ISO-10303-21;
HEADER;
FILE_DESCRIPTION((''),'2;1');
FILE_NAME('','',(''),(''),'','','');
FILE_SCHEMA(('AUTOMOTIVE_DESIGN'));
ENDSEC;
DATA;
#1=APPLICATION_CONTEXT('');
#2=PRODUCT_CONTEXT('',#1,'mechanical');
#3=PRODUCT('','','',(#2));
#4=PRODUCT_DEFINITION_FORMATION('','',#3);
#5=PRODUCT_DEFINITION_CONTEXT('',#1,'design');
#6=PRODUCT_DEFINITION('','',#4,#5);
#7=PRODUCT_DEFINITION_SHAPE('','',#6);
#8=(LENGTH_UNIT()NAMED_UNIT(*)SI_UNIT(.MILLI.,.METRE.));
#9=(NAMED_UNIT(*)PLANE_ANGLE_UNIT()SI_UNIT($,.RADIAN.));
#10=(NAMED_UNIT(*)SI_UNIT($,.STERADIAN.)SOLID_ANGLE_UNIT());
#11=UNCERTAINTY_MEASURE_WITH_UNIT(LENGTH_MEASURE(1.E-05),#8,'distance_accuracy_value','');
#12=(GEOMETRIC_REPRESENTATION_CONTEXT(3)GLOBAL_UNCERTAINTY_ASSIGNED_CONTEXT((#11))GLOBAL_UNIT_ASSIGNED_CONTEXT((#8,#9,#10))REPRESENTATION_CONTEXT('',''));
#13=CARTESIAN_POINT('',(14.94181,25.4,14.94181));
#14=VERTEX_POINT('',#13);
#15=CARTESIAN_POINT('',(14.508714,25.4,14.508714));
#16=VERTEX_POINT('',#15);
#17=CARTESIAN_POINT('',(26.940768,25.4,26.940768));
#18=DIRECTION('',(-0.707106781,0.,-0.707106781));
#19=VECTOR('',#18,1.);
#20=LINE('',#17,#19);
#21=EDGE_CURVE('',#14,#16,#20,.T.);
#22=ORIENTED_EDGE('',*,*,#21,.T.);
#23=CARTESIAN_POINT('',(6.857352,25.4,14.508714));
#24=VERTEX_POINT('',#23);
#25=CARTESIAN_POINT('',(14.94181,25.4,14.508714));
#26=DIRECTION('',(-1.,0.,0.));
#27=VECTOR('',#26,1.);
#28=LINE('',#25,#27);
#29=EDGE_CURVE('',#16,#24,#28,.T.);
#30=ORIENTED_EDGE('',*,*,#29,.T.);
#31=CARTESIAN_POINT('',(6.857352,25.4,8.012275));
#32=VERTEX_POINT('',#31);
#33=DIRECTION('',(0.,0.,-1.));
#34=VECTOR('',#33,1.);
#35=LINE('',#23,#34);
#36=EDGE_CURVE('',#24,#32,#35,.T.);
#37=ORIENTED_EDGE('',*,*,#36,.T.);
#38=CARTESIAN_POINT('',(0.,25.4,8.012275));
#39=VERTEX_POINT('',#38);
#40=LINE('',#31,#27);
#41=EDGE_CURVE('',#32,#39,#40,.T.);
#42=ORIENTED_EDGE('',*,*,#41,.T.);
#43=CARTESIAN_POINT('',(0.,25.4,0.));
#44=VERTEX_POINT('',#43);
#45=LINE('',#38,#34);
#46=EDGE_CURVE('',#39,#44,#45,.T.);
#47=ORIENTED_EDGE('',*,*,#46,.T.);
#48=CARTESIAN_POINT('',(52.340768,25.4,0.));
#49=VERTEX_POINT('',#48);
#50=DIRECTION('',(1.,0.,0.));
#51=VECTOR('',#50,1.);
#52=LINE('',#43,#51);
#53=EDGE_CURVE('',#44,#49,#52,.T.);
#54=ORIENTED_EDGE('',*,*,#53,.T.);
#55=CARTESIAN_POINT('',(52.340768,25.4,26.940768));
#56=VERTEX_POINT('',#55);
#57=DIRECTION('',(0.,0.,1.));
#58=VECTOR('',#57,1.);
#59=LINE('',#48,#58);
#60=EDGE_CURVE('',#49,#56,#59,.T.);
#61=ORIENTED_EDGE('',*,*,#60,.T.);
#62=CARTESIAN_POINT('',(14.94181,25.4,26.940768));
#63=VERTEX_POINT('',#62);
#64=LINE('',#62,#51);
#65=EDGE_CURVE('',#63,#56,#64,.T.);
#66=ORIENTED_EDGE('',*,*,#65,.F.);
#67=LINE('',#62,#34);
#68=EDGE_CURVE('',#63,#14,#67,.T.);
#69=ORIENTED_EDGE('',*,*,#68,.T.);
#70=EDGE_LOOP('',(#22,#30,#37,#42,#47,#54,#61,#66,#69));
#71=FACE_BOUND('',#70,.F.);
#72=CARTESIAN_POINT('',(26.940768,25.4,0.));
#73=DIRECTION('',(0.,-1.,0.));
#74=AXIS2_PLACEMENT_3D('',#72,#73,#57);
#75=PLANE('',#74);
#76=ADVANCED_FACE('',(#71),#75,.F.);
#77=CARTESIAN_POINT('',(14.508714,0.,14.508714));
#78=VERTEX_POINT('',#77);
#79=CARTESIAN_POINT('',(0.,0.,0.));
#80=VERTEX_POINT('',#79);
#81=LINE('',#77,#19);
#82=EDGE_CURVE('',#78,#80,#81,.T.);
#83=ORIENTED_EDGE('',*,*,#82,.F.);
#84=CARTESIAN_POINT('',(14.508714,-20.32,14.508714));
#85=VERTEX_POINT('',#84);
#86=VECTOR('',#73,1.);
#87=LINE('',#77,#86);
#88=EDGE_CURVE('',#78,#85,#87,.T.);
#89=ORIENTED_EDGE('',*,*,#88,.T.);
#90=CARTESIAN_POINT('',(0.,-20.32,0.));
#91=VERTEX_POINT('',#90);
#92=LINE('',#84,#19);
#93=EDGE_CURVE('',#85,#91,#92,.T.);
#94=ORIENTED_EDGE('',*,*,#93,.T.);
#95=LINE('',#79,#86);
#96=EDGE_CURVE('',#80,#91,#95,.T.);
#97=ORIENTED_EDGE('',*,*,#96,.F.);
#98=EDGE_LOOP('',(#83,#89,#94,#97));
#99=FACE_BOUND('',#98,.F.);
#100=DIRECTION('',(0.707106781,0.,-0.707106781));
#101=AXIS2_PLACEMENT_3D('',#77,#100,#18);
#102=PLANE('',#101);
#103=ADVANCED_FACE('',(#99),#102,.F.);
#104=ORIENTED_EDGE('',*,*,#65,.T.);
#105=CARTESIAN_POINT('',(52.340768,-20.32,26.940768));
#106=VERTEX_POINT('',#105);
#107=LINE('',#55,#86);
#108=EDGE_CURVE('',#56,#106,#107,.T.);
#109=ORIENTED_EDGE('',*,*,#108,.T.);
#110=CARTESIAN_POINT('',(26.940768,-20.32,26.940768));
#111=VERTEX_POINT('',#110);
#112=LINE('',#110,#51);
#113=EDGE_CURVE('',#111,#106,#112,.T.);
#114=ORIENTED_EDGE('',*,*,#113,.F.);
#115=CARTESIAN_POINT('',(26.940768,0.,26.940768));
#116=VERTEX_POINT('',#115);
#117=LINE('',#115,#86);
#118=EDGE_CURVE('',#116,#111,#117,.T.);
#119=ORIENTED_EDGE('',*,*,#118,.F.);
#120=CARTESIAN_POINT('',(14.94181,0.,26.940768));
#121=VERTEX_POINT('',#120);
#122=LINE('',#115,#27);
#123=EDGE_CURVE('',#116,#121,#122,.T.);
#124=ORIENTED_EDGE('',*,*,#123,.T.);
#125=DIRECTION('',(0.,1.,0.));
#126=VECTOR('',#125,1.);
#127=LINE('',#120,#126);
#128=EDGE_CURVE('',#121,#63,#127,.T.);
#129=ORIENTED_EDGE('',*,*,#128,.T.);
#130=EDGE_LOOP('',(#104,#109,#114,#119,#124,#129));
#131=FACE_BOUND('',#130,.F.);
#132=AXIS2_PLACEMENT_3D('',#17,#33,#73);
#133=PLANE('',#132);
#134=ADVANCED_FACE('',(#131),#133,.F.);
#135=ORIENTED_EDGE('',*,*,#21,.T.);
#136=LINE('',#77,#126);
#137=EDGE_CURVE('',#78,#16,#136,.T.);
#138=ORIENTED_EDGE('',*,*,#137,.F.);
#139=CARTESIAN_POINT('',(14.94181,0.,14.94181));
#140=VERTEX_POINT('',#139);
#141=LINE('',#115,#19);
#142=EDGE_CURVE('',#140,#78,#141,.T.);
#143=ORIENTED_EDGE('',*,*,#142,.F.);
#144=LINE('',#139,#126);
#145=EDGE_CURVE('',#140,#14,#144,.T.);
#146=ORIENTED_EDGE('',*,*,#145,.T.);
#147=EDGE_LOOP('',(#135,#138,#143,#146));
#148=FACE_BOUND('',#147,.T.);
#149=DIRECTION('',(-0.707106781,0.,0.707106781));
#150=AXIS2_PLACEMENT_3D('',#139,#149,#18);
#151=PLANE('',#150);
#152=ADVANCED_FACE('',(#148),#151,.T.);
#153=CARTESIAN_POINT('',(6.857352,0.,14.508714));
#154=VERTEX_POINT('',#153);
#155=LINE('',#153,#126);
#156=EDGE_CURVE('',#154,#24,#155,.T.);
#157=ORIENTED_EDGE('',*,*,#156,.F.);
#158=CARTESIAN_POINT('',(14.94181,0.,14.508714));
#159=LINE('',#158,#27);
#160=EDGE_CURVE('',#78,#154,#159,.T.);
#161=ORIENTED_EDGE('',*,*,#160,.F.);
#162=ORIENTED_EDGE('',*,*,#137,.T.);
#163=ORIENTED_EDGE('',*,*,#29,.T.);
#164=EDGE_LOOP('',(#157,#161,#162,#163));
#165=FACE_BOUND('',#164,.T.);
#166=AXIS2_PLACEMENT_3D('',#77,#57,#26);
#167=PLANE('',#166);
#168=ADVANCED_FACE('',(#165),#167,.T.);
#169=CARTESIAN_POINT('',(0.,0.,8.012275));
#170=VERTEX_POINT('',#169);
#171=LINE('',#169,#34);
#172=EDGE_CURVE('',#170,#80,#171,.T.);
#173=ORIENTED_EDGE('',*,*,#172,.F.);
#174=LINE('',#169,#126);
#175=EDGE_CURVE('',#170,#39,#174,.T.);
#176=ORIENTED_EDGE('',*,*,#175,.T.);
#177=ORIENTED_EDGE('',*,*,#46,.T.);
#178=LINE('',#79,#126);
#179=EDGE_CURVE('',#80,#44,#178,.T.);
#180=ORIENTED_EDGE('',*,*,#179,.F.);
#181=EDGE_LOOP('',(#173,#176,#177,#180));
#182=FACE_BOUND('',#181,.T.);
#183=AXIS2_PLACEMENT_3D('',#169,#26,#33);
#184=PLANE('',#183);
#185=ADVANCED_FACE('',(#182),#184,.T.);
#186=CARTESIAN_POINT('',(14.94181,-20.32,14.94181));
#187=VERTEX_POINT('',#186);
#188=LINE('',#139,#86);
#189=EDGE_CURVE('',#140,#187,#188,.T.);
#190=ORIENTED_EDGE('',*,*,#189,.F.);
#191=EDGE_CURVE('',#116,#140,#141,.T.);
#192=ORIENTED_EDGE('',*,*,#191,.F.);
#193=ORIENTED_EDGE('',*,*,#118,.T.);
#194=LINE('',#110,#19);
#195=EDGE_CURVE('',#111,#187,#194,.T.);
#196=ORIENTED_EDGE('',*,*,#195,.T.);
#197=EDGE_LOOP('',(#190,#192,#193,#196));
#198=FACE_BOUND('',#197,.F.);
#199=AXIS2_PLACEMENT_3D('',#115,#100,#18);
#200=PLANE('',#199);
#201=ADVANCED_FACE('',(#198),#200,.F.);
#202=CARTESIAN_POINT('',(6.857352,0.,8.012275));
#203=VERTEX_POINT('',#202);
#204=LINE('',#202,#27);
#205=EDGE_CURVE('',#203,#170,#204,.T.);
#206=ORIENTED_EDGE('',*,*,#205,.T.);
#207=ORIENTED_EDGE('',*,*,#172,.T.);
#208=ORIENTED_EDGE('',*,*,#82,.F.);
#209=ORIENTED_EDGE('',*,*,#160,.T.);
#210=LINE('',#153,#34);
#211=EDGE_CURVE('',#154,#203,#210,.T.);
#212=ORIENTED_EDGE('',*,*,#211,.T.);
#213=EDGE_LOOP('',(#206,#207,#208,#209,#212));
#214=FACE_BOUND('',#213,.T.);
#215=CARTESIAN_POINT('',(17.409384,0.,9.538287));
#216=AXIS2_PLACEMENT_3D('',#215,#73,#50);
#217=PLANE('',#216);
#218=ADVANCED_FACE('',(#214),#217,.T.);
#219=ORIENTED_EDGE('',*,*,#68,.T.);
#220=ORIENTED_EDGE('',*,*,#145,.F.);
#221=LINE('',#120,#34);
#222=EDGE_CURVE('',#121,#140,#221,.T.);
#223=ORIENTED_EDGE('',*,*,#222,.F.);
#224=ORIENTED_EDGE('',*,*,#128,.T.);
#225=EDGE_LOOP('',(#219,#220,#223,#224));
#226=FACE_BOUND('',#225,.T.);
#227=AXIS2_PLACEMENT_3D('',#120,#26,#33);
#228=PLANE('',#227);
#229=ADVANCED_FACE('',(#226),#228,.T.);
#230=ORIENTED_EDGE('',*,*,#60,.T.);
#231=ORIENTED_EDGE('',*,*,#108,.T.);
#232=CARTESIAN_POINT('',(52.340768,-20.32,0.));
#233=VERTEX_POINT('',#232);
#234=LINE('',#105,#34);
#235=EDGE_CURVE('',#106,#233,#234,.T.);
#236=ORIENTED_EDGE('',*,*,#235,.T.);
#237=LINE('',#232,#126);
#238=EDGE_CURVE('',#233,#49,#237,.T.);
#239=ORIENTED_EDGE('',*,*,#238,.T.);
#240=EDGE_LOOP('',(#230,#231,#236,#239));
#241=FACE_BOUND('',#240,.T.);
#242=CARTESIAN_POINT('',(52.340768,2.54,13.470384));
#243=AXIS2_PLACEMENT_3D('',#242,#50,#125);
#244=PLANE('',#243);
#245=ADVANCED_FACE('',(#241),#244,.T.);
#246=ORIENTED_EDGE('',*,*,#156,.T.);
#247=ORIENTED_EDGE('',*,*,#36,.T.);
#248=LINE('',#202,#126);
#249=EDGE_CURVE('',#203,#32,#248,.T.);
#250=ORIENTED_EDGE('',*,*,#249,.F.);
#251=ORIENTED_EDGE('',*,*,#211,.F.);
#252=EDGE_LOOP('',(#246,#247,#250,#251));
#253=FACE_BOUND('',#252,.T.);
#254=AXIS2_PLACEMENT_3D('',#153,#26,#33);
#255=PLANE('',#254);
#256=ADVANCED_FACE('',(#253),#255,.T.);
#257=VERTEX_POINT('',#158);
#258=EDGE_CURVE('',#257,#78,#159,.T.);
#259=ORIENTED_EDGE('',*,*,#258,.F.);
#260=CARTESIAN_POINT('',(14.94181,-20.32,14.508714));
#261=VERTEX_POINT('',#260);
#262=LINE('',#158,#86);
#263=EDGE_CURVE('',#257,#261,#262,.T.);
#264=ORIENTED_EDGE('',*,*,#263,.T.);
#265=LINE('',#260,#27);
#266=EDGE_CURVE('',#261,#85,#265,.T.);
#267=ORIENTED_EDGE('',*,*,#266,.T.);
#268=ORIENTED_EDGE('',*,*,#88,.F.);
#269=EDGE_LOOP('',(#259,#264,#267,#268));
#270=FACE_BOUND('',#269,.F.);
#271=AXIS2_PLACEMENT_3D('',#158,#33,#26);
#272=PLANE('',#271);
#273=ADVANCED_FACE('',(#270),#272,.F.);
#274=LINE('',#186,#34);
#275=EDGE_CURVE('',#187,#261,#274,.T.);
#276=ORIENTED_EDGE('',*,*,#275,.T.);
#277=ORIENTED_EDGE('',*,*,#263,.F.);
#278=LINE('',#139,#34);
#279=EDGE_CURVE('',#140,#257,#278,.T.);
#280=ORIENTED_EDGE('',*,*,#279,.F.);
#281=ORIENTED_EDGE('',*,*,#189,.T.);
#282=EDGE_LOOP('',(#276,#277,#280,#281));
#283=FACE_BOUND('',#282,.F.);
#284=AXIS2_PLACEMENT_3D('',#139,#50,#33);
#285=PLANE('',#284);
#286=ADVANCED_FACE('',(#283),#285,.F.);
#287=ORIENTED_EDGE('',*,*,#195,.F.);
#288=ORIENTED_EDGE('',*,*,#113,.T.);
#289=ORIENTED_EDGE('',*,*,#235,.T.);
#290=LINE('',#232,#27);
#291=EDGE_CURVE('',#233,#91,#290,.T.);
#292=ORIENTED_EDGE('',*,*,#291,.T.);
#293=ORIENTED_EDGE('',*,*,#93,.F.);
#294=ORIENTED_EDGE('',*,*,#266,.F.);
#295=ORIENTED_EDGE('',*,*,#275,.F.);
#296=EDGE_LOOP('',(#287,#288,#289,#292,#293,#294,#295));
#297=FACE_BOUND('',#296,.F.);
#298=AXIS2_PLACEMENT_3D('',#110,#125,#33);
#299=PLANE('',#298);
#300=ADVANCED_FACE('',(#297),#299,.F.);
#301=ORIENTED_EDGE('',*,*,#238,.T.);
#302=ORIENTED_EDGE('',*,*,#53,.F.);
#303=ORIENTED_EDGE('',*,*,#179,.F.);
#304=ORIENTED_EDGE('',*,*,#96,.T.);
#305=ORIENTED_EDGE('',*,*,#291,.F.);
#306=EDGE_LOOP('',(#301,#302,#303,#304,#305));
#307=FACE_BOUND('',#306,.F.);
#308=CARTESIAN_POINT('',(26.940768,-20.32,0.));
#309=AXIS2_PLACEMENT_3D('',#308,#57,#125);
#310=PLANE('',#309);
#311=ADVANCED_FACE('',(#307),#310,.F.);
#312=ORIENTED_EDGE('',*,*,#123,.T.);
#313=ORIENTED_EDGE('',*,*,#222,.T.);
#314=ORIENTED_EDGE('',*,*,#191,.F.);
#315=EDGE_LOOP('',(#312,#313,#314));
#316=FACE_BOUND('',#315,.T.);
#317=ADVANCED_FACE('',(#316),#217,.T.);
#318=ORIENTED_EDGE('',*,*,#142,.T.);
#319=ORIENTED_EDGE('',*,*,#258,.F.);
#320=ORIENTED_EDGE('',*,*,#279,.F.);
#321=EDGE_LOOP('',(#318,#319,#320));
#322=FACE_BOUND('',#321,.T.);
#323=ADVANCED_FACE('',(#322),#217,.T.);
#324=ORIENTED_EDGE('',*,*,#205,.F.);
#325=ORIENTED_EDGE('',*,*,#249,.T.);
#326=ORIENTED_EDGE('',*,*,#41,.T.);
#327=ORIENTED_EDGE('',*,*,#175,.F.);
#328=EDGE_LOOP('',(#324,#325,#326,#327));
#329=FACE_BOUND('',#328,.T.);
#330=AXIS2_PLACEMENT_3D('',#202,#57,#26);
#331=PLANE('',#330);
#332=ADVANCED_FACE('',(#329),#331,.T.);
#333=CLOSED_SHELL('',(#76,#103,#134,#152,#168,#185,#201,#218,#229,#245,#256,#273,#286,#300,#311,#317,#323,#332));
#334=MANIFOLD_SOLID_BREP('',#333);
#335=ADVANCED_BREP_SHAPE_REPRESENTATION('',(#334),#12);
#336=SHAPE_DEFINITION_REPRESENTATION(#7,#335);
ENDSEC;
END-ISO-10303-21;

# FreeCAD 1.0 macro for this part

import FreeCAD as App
import Part
import Sketcher
from FreeCAD import Vector
Q = App.Units.Quantity


def add_polygon(sketch, points):
    """Adds a closed chain of lines whose ends are joined by coincident constraints."""
    first, n = sketch.GeometryCount, len(points)
    for a, b in zip(points, points[1:] + points[:1]):
        sketch.addGeometry(Part.LineSegment(App.Vector(*a, 0), App.Vector(*b, 0)), False)
    for i in range(n):
        sketch.addConstraint(Sketcher.Constraint("Coincident", first + i, 2, first + (i + 1) % n, 1))

doc = App.newDocument("Part")
body = doc.addObject("PartDesign::Body", "Body")

sketch1 = doc.addObject("Sketcher::SketchObject", "Sketch")
body.addObject(sketch1)
sketch1.AttachmentSupport = (doc.XZ_Plane, [""])
sketch1.MapMode = "FlatFace"
add_polygon(sketch1, [(14.51, 14.51), (0, 0), (26.94, 0), (26.94, 26.94), (14.94, 14.94), (14.94, 14.51)])
sketch1.addConstraint([
    Sketcher.Constraint("Horizontal", 1),
    Sketcher.Constraint("Vertical", 2),
    Sketcher.Constraint("Vertical", 4),
    Sketcher.Constraint("Horizontal", 5),
    Sketcher.Constraint("Coincident", 0, 2, -1, 1),
    Sketcher.Constraint("Parallel", 0, 3),
    Sketcher.Constraint("Equal", 1, 2),
    Sketcher.Constraint("Equal", 5, 4),
    Sketcher.Constraint("DistanceX", 3, 2, 2, 2, Q("0.4723999 in")),
    Sketcher.Constraint("Distance", 0, 20.51842),
    Sketcher.Constraint("DistanceX", 1, 1, 1, 2, 26.940768),
])
pad1 = doc.addObject("PartDesign::Pad", "Pad")
body.addObject(pad1)
pad1.Profile = sketch1
pad1.Length = Q("0.8 in")

sketch2 = doc.addObject("Sketcher::SketchObject", "Sketch001")
body.addObject(sketch2)
sketch2.AttachmentSupport = (doc.XZ_Plane, [""])
sketch2.MapMode = "FlatFace"
add_polygon(sketch2, [(0, 0), (26.9, 0), (26.9, 26.9), (14.9, 26.9), (14.9, 14.9), (14.5, 14.5), (6.9, 14.5), (6.9, 8), (0, 8)])
sketch2.addConstraint([
    Sketcher.Constraint("Horizontal", 0),
    Sketcher.Constraint("Vertical", 1),
    Sketcher.Constraint("Horizontal", 2),
    Sketcher.Constraint("Vertical", 3),
    Sketcher.Constraint("Horizontal", 5),
    Sketcher.Constraint("Vertical", 6),
    Sketcher.Constraint("Horizontal", 7),
    Sketcher.Constraint("Vertical", 8),
    Sketcher.Constraint("Coincident", 8, 2, -1, 1),
    Sketcher.Constraint("Equal", 0, 1),
    Sketcher.Constraint("Equal", 2, 3),
    Sketcher.Constraint("Angle", 4, Q("-135 deg")),
    Sketcher.Constraint("DistanceX", 2, 2, 2, 1, Q("0.4723999 in")),
    Sketcher.Constraint("DistanceX", 5, 2, 5, 1, 7.651362),
    Sketcher.Constraint("DistanceX", 7, 2, 7, 1, 6.857352),
    Sketcher.Constraint("DistanceY", 6, 2, 6, 1, 6.496439),
    Sketcher.Constraint("Distance", 4, 0.61249),
])
pad2 = doc.addObject("PartDesign::Pad", "Pad001")
body.addObject(pad2)
pad2.Profile = sketch2
pad2.Length = Q("1 in")
pad2.Reversed = True

sketch3 = doc.addObject("Sketcher::SketchObject", "Sketch002")
body.addObject(sketch3)
sketch3.AttachmentSupport = (doc.YZ_Plane, [""])
sketch3.MapMode = "FlatFace"
sketch3.AttachmentOffset = App.Placement(Vector(0, 0, 26.940768), App.Rotation())
add_polygon(sketch3, [(-20, 0), (25, 0), (25, 27), (-20, 27)])
sketch3.addConstraint([
    Sketcher.Constraint("Horizontal", 0),
    Sketcher.Constraint("Vertical", 1),
    Sketcher.Constraint("Horizontal", 2),
    Sketcher.Constraint("Vertical", 3),
    Sketcher.Constraint("PointOnObject", 0, 2, -1),
    Sketcher.Constraint("DistanceX", 0, 1, 0, 2, Q("1.8 in")),
    Sketcher.Constraint("DistanceX", -1, 1, 0, 2, Q("1 in")),
    Sketcher.Constraint("DistanceY", 1, 1, 1, 2, 26.940768),
])
pad3 = doc.addObject("PartDesign::Pad", "Pad002")
body.addObject(pad3)
pad3.Profile = sketch3
pad3.Length = Q("1 in")

doc.recompute()
